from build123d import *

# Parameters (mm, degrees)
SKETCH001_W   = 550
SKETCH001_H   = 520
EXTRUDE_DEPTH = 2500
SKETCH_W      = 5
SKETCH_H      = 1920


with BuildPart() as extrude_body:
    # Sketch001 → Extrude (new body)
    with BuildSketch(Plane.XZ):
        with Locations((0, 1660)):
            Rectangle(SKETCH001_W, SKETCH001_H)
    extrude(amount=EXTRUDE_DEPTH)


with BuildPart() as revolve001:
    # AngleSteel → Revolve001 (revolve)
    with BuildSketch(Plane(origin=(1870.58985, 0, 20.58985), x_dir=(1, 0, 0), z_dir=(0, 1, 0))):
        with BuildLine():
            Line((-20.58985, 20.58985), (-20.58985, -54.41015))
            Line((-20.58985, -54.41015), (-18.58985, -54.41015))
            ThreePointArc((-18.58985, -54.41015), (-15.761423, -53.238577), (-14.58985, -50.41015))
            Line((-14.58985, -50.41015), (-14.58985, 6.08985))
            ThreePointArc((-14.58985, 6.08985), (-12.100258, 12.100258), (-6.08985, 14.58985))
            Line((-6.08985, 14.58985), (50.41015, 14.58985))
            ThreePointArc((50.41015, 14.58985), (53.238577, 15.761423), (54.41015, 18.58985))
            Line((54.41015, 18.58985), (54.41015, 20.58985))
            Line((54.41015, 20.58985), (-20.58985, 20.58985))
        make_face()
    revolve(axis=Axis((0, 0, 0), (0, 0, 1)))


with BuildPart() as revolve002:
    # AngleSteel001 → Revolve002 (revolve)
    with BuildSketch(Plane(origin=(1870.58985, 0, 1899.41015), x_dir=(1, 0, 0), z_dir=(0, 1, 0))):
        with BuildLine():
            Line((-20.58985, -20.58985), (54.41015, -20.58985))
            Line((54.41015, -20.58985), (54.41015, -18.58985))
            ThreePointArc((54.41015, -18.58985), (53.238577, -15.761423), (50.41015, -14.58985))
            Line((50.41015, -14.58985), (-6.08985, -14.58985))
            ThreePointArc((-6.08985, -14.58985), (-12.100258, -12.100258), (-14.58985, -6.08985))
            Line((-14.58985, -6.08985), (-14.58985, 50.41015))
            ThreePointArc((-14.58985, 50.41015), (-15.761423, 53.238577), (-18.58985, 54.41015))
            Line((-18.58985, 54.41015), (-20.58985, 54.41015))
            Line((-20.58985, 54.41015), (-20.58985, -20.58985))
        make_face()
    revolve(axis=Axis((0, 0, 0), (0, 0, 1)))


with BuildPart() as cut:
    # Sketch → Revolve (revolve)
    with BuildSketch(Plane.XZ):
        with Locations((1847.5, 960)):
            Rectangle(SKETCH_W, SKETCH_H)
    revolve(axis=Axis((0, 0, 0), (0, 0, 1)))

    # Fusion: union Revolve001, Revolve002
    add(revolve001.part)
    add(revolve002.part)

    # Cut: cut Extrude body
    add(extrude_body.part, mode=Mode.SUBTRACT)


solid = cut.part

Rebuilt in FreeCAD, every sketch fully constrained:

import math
import FreeCAD as App
import Part
import Sketcher


def add_polygon(sketch, points):
    """Adds a closed chain of lines whose ends are joined by coincident constraints."""
    first, n = sketch.GeometryCount, len(points)
    for a, b in zip(points, points[1:] + points[:1]):
        sketch.addGeometry(Part.LineSegment(App.Vector(*a, 0), App.Vector(*b, 0)), False)
    for i in range(n):
        sketch.addConstraint(Sketcher.Constraint("Coincident", first + i, 2, first + (i + 1) % n, 1))

doc = App.newDocument("Part")
body = doc.addObject("PartDesign::Body", "Body")

sketch1 = body.newObject("Sketcher::SketchObject", "Sketch")
sketch1.AttachmentSupport = (doc.getObject("XZ_Plane"), [""])
sketch1.MapMode = "FlatFace"
add_polygon(sketch1, [(-275, 1920), (-275, 1400), (275, 1400), (275, 1920)])
sketch1.addConstraint([
    Sketcher.Constraint("Vertical", 0),
    Sketcher.Constraint("Horizontal", 1),
    Sketcher.Constraint("Vertical", 2),
    Sketcher.Constraint("Horizontal", 3),
    Sketcher.Constraint("DistanceX", 1, 1, 1, 2, 550.0),
    Sketcher.Constraint("DistanceY", 0, 2, 0, 1, 520.0),
    Sketcher.Constraint("DistanceX", 0, 2, -1, 1, 275.0),
    Sketcher.Constraint("DistanceY", -1, 1, 0, 2, 1400.0),
])
pad1 = body.newObject("PartDesign::Pad", "Pad")
pad1.Profile = sketch1
pad1.Length = 2500
body2 = doc.addObject("PartDesign::Body", "Body001")

sketch2 = body2.newObject("Sketcher::SketchObject", "Sketch001")
sketch2.AttachmentSupport = (doc.getObject("XZ_Plane001"), [""])
sketch2.MapMode = "FlatFace"
sketch2.addGeometry([
    Part.LineSegment(App.Vector(1850, 0, 0), App.Vector(1850, 75, 0)),
    Part.LineSegment(App.Vector(1850, 75, 0), App.Vector(1852, 75, 0)),
    Part.ArcOfCircle(Part.Circle(App.Vector(1852, 71, 0), App.Vector(0, 0, 1), 4), math.radians(0), math.radians(90)),
    Part.LineSegment(App.Vector(1856, 71, 0), App.Vector(1856, 14.5, 0)),
    Part.ArcOfCircle(Part.Circle(App.Vector(1864.5, 14.5, 0), App.Vector(0, 0, 1), 8.5), math.radians(180), math.radians(270)),
    Part.LineSegment(App.Vector(1864.5, 6, 0), App.Vector(1921, 6, 0)),
    Part.ArcOfCircle(Part.Circle(App.Vector(1921, 2, 0), App.Vector(0, 0, 1), 4), math.radians(0), math.radians(90)),
    Part.LineSegment(App.Vector(1925, 2, 0), App.Vector(1925, 0, 0)),
    Part.LineSegment(App.Vector(1925, 0, 0), App.Vector(1850, 0, 0)),
], False)
sketch2.addConstraint([
    Sketcher.Constraint("Coincident", 0, 2, 1, 1),
    Sketcher.Constraint("Tangent", 1, 2, 2, 2),
    Sketcher.Constraint("Tangent", 2, 1, 3, 1),
    Sketcher.Constraint("Tangent", 3, 2, 4, 1),
    Sketcher.Constraint("Tangent", 4, 2, 5, 1),
    Sketcher.Constraint("Tangent", 5, 2, 6, 2),
    Sketcher.Constraint("Tangent", 6, 1, 7, 1),
    Sketcher.Constraint("Coincident", 7, 2, 8, 1),
    Sketcher.Constraint("Coincident", 8, 2, 0, 1),
    Sketcher.Constraint("Vertical", 0),
    Sketcher.Constraint("Horizontal", 1),
    Sketcher.Constraint("Vertical", 3),
    Sketcher.Constraint("Horizontal", 5),
    Sketcher.Constraint("Vertical", 7),
    Sketcher.Constraint("Horizontal", 8),
    Sketcher.Constraint("Equal", 2, 6),
    Sketcher.Constraint("PointOnObject", 7, 2, -1),
    Sketcher.Constraint("Equal", 8, 0),
    Sketcher.Constraint("Equal", 5, 3),
    Sketcher.Constraint("Radius", 2, 4.0),
    Sketcher.Constraint("Radius", 4, 8.499999),
    Sketcher.Constraint("DistanceX", 1, 1, 1, 2, 2.0),
    Sketcher.Constraint("DistanceX", 8, 2, 8, 1, 75.0),
    Sketcher.Constraint("DistanceX", -1, 1, 2, 3, 1852.0),
])
revolution = body2.newObject("PartDesign::Revolution", "Revolution")
revolution.Profile = sketch2
revolution.ReferenceAxis = (sketch2, ["V_Axis"])
revolution.Angle = 360
body3 = doc.addObject("PartDesign::Body", "Body002")

sketch3 = body3.newObject("Sketcher::SketchObject", "Sketch002")
sketch3.AttachmentSupport = (doc.getObject("XZ_Plane002"), [""])
sketch3.MapMode = "FlatFace"
sketch3.addGeometry([
    Part.LineSegment(App.Vector(1850, 1920, 0), App.Vector(1925, 1920, 0)),
    Part.LineSegment(App.Vector(1925, 1920, 0), App.Vector(1925, 1918, 0)),
    Part.ArcOfCircle(Part.Circle(App.Vector(1921, 1918, 0), App.Vector(0, 0, 1), 4), math.radians(-90), math.radians(0)),
    Part.LineSegment(App.Vector(1921, 1914, 0), App.Vector(1864.5, 1914, 0)),
    Part.ArcOfCircle(Part.Circle(App.Vector(1864.5, 1905.5, 0), App.Vector(0, 0, 1), 8.5), math.radians(90), math.radians(180)),
    Part.LineSegment(App.Vector(1856, 1905.5, 0), App.Vector(1856, 1849, 0)),
    Part.ArcOfCircle(Part.Circle(App.Vector(1852, 1849, 0), App.Vector(0, 0, 1), 4), math.radians(-90), math.radians(0)),
    Part.LineSegment(App.Vector(1852, 1845, 0), App.Vector(1850, 1845, 0)),
    Part.LineSegment(App.Vector(1850, 1845, 0), App.Vector(1850, 1920, 0)),
], False)
sketch3.addConstraint([
    Sketcher.Constraint("Coincident", 0, 2, 1, 1),
    Sketcher.Constraint("Tangent", 1, 2, 2, 2),
    Sketcher.Constraint("Tangent", 2, 1, 3, 1),
    Sketcher.Constraint("Tangent", 3, 2, 4, 1),
    Sketcher.Constraint("Tangent", 4, 2, 5, 1),
    Sketcher.Constraint("Tangent", 5, 2, 6, 2),
    Sketcher.Constraint("Tangent", 6, 1, 7, 1),
    Sketcher.Constraint("Coincident", 7, 2, 8, 1),
    Sketcher.Constraint("Coincident", 8, 2, 0, 1),
    Sketcher.Constraint("Horizontal", 0),
    Sketcher.Constraint("Vertical", 1),
    Sketcher.Constraint("Horizontal", 3),
    Sketcher.Constraint("Vertical", 5),
    Sketcher.Constraint("Horizontal", 7),
    Sketcher.Constraint("Vertical", 8),
    Sketcher.Constraint("Equal", 2, 6),
    Sketcher.Constraint("Equal", 7, 1),
    Sketcher.Constraint("Equal", 3, 5),
    Sketcher.Constraint("Radius", 2, 4.0),
    Sketcher.Constraint("Radius", 4, 8.499999),
    Sketcher.Constraint("DistanceX", 0, 1, 0, 2, 75.0),
    Sketcher.Constraint("DistanceX", 7, 2, 7, 1, 2.0),
    Sketcher.Constraint("DistanceX", -1, 1, 2, 3, 1921.0),
    Sketcher.Constraint("DistanceY", -1, 1, 2, 3, 1918.0),
])
revolution2 = body3.newObject("PartDesign::Revolution", "Revolution001")
revolution2.Profile = sketch3
revolution2.ReferenceAxis = (sketch3, ["V_Axis"])
revolution2.Angle = 360
body4 = doc.addObject("PartDesign::Body", "Body003")

sketch4 = body4.newObject("Sketcher::SketchObject", "Sketch003")
sketch4.AttachmentSupport = (doc.getObject("XZ_Plane003"), [""])
sketch4.MapMode = "FlatFace"
add_polygon(sketch4, [(1845, 1920), (1845, 0), (1850, 0), (1850, 1920)])
sketch4.addConstraint([
    Sketcher.Constraint("Vertical", 0),
    Sketcher.Constraint("Horizontal", 1),
    Sketcher.Constraint("Vertical", 2),
    Sketcher.Constraint("Horizontal", 3),
    Sketcher.Constraint("PointOnObject", 0, 2, -1),
    Sketcher.Constraint("DistanceX", 1, 1, 1, 2, 5.0),
    Sketcher.Constraint("DistanceY", 0, 2, 0, 1, 1920.0),
    Sketcher.Constraint("DistanceX", -1, 1, 0, 2, 1845.0),
])
revolution3 = body4.newObject("PartDesign::Revolution", "Revolution002")
revolution3.Profile = sketch4
revolution3.ReferenceAxis = (sketch4, ["V_Axis"])
revolution3.Angle = 360
doc.recompute()

boolean = body4.newObject("PartDesign::Boolean", "Boolean")
boolean.Type = "Fuse"
boolean.addObjects([body2])
doc.recompute()

boolean2 = body4.newObject("PartDesign::Boolean", "Boolean001")
boolean2.Type = "Fuse"
boolean2.addObjects([body3])
doc.recompute()

boolean3 = body4.newObject("PartDesign::Boolean", "Boolean002")
boolean3.Type = "Cut"
boolean3.addObjects([body])

doc.recompute()
